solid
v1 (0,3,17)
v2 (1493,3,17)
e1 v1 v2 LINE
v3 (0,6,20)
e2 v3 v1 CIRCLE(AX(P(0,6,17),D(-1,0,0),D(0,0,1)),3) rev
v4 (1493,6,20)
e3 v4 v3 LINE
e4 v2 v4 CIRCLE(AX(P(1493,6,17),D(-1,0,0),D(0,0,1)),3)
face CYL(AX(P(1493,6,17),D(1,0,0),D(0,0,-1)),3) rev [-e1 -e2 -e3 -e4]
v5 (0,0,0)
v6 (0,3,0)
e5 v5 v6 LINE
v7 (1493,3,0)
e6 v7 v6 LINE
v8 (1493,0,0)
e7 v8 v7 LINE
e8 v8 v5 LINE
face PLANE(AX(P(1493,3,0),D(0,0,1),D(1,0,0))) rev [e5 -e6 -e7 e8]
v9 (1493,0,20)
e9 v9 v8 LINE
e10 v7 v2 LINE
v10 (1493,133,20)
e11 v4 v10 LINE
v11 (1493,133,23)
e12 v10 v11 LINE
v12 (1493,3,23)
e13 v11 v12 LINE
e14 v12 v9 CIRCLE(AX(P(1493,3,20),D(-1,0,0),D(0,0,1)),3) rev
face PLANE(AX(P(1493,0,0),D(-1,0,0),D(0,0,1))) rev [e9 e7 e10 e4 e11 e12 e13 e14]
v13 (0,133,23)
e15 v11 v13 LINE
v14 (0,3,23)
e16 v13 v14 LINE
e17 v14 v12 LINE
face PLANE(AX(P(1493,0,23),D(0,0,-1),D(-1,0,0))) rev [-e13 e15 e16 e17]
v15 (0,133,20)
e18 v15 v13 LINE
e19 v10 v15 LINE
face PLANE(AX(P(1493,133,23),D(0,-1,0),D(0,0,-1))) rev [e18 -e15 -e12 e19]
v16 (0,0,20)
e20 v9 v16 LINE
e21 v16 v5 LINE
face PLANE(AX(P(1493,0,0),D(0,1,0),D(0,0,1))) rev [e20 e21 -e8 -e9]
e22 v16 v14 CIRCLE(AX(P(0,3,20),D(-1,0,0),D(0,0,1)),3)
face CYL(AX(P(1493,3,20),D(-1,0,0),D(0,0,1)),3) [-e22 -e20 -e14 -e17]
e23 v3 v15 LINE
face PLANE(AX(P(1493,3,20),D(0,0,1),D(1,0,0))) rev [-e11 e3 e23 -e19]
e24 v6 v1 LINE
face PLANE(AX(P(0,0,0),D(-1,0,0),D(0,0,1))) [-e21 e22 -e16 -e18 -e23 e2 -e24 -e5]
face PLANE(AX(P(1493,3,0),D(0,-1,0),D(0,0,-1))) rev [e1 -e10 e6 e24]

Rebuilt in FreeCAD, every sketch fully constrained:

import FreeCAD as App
import Part
import Sketcher


def edges_at(feature, points):
    """Names of the edges that pass closest to the given points."""
    edges = feature.Shape.Edges
    near = lambda p: min(range(len(edges)), key=lambda i: edges[i].distToShape(Part.Vertex(*p))[0])
    return sorted({f"Edge{near(p) + 1}" for p in points})


def add_polygon(sketch, points):
    """Adds a closed chain of lines whose ends are joined by coincident constraints."""
    first, n = sketch.GeometryCount, len(points)
    for a, b in zip(points, points[1:] + points[:1]):
        sketch.addGeometry(Part.LineSegment(App.Vector(*a, 0), App.Vector(*b, 0)), False)
    for i in range(n):
        sketch.addConstraint(Sketcher.Constraint("Coincident", first + i, 2, first + (i + 1) % n, 1))

doc = App.newDocument("Part")
params = doc.addObject("Spreadsheet::Sheet", "Params")
for row, (alias, value) in enumerate([
    ("sketch1_width", "3 mm"),
    ("sketch1_width2", "130 mm"),
    ("sketch1_height", "23 mm"),
    ("pad1_length", "1493 mm"),
    ("fillet_radius", "3 mm"),
], start=1):
    params.set(f"A{row}", alias)
    params.set(f"B{row}", "=" + value)
    params.setAlias(f"B{row}", alias)

body = doc.addObject("PartDesign::Body", "Body")

sketch1 = body.newObject("Sketcher::SketchObject", "Sketch")
sketch1.AttachmentSupport = (doc.getObject("YZ_Plane"), [""])
sketch1.MapMode = "FlatFace"
add_polygon(sketch1, [(0, 23), (0, 0), (3, 0), (3, 20), (133, 20), (133, 23)])
sketch1.addConstraint(Sketcher.Constraint("Vertical", 0))
sketch1.addConstraint(Sketcher.Constraint("Horizontal", 1))
sketch1.addConstraint(Sketcher.Constraint("Vertical", 2))
sketch1.addConstraint(Sketcher.Constraint("Horizontal", 3))
sketch1.addConstraint(Sketcher.Constraint("Vertical", 4))
sketch1.addConstraint(Sketcher.Constraint("Horizontal", 5))
sketch1.addConstraint(Sketcher.Constraint("Coincident", 0, 2, -1, 1))
sketch1.addConstraint(Sketcher.Constraint("Equal", 1, 4))
sketch1.addConstraint(Sketcher.Constraint("DistanceX", 1, 1, 1, 2, 3.0))
sketch1.addConstraint(Sketcher.Constraint("DistanceX", 3, 1, 3, 2, 130.0))
sketch1.addConstraint(Sketcher.Constraint("DistanceY", 0, 2, 0, 1, 23.0))
sketch1.setExpression("Constraints[14]", "Params.sketch1_width")
sketch1.setExpression("Constraints[15]", "Params.sketch1_width2")
sketch1.setExpression("Constraints[16]", "Params.sketch1_height")
pad1 = body.newObject("PartDesign::Pad", "Pad")
pad1.Profile = sketch1
pad1.setExpression("Length", "Params.pad1_length")
doc.recompute()

fillet = body.newObject("PartDesign::Fillet", "Fillet")
fillet.Base = (pad1, edges_at(pad1, [(746.5, 0, 23), (746.5, 3, 20)]))
fillet.setExpression("Radius", "Params.fillet_radius")

doc.recompute()
